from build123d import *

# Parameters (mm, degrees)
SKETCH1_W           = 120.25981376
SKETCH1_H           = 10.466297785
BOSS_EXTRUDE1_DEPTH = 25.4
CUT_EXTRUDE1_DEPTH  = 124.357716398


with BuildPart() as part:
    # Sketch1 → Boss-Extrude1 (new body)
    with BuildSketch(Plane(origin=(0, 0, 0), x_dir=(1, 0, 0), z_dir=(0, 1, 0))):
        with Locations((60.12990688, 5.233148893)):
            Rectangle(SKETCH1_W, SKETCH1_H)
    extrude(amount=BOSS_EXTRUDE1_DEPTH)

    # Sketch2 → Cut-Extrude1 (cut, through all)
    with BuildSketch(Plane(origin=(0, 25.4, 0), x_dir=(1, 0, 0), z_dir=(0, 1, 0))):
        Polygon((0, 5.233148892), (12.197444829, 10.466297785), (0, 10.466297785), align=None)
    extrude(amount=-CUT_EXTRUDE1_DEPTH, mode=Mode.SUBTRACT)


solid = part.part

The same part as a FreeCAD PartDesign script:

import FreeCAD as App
import Part
import Sketcher
Q = App.Units.Quantity


def add_polygon(sketch, points):
    """Adds a closed chain of lines whose ends are joined by coincident constraints."""
    first, n = sketch.GeometryCount, len(points)
    for a, b in zip(points, points[1:] + points[:1]):
        sketch.addGeometry(Part.LineSegment(App.Vector(*a, 0), App.Vector(*b, 0)), False)
    for i in range(n):
        sketch.addConstraint(Sketcher.Constraint("Coincident", first + i, 2, first + (i + 1) % n, 1))

doc = App.newDocument("Part")
body = doc.addObject("PartDesign::Body", "Body")

# Sketch on XZ plane
sketch1 = body.newObject("Sketcher::SketchObject", "Sketch")
sketch1.AttachmentSupport = (doc.getObject("XZ_Plane"), [""])
sketch1.MapMode = "FlatFace"
add_polygon(sketch1, [(0, -10), (0, 0), (120, 0), (120, -10)])  # lines 0-3
sketch1.addConstraint(Sketcher.Constraint("Vertical", 0))
sketch1.addConstraint(Sketcher.Constraint("Horizontal", 1))
sketch1.addConstraint(Sketcher.Constraint("Vertical", 2))
sketch1.addConstraint(Sketcher.Constraint("Horizontal", 3))
sketch1.addConstraint(Sketcher.Constraint("Coincident", 0, 2, -1, 1))
sketch1.addConstraint(Sketcher.Constraint("DistanceX", 1, 1, 1, 2, 120.259814))
sketch1.addConstraint(Sketcher.Constraint("DistanceY", 0, 1, 0, 2, 10.466298))
pad1 = body.newObject("PartDesign::Pad", "Pad")
pad1.Profile = sketch1
pad1.Length = Q("1 in")
pad1.Reversed = True

# Sketch on XZ plane
sketch2 = body.newObject("Sketcher::SketchObject", "Sketch001")
sketch2.AttachmentSupport = (doc.getObject("XZ_Plane"), [""])
sketch2.MapMode = "FlatFace"
sketch2.AttachmentOffset = App.Placement(App.Vector(0, 0, -1 * 25.4), App.Rotation())
add_polygon(sketch2, [(0, -5), (12, -10), (0, -10)])  # lines 0-2
sketch2.addConstraint(Sketcher.Constraint("Horizontal", 1))
sketch2.addConstraint(Sketcher.Constraint("Vertical", 2))
sketch2.addConstraint(Sketcher.Constraint("PointOnObject", 1, 2, -2))
sketch2.addConstraint(Sketcher.Constraint("DistanceY", 2, 1, 2, 2, 5.233149))
sketch2.addConstraint(Sketcher.Constraint("Distance", 0, 13.27266))
sketch2.addConstraint(Sketcher.Constraint("DistanceY", 2, 2, -1, 1, 5.233149))
pocket1 = body.newObject("PartDesign::Pocket", "Pocket")
pocket1.Profile = sketch2
pocket1.Type = "ThroughAll"
pocket1.Reversed = True

doc.recompute()
